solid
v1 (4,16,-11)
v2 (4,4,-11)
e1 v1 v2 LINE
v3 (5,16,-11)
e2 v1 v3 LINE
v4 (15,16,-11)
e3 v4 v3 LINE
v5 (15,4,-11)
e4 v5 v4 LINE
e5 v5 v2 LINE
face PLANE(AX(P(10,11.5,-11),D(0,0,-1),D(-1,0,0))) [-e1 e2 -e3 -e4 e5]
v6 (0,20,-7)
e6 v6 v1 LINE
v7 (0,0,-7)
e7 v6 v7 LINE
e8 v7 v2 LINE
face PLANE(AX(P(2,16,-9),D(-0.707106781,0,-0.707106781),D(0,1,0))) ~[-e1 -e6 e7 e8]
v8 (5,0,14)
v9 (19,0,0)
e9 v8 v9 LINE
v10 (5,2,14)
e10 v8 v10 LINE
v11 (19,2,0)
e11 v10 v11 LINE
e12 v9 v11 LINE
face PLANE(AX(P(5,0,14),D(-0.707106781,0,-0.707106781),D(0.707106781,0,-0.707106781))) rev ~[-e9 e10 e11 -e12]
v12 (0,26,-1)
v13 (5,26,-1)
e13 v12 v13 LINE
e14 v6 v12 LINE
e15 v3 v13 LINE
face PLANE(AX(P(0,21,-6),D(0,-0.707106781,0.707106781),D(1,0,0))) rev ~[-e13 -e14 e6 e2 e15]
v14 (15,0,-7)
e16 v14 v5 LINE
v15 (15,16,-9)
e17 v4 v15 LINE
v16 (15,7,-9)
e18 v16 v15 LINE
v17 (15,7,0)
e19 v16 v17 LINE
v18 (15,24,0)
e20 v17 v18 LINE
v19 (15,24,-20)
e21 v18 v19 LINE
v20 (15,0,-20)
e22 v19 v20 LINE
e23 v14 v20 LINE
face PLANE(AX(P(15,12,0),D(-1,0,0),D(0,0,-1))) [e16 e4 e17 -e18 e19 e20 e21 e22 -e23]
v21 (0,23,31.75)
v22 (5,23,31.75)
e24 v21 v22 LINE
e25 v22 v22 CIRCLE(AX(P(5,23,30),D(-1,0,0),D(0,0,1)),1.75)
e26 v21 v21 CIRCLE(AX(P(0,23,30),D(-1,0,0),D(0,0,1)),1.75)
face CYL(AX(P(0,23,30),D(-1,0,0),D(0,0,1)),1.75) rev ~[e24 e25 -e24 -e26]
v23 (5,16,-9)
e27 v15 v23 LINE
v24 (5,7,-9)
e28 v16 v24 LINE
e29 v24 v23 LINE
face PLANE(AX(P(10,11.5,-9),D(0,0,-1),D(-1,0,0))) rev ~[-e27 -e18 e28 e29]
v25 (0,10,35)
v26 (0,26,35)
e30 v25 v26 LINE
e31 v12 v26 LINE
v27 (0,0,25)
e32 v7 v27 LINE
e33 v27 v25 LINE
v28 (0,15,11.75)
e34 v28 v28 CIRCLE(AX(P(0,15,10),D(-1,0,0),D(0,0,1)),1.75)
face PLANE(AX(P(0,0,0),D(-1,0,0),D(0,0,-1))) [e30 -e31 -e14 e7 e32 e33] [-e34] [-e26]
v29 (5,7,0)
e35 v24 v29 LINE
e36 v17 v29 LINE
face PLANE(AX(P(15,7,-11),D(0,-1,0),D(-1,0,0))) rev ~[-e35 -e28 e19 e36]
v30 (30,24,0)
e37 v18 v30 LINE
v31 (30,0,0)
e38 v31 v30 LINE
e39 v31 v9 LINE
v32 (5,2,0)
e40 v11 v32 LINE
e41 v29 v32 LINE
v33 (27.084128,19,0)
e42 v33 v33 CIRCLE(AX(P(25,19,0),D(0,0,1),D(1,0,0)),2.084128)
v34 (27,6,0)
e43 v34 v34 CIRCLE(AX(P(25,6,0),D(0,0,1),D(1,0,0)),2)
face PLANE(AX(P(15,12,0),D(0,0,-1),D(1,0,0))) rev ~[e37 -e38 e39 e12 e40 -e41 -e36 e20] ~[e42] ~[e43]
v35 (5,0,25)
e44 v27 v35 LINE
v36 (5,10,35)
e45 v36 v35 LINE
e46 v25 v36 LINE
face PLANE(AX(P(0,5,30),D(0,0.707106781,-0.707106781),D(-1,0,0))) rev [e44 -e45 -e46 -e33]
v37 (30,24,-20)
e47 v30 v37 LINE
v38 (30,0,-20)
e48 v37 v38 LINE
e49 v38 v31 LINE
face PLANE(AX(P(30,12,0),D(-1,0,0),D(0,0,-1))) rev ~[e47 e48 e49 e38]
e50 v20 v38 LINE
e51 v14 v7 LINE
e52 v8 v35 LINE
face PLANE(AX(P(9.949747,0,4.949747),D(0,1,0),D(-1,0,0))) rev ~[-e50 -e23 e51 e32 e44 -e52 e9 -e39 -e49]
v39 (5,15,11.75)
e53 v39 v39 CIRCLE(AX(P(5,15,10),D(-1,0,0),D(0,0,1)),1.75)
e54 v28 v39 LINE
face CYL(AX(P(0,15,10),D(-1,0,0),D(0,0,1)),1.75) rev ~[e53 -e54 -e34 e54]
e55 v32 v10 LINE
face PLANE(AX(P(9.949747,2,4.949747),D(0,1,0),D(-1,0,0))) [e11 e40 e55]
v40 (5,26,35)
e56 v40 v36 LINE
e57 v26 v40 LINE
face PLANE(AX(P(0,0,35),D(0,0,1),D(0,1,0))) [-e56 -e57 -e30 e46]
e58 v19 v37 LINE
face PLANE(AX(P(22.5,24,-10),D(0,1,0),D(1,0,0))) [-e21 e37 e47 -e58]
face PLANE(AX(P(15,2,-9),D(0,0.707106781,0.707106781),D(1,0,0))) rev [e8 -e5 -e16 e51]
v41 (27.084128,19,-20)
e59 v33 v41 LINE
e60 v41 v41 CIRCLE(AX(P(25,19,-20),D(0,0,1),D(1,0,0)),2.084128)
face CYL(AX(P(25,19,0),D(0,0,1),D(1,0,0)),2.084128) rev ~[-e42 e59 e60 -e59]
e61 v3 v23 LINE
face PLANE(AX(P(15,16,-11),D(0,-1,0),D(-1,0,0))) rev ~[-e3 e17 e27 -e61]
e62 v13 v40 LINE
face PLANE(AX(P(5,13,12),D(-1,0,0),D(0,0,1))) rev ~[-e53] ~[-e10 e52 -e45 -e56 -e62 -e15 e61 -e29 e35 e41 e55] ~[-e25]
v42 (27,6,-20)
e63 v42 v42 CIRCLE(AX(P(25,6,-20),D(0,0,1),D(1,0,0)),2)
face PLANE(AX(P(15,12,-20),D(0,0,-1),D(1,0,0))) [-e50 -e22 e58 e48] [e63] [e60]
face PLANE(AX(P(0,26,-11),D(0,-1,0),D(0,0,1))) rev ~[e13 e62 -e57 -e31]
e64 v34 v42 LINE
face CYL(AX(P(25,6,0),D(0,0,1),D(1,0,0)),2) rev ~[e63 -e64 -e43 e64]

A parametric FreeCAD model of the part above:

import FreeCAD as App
import Part
import Sketcher
from FreeCAD import Vector


def edges_at(feature, points):
    """Names of the edges that pass closest to the given points."""
    edges = feature.Shape.Edges
    near = lambda p: min(range(len(edges)), key=lambda i: edges[i].distToShape(Part.Vertex(*p))[0])
    return sorted({f"Edge{near(p) + 1}" for p in points})

doc = App.newDocument("Part")
body = doc.addObject("PartDesign::Body", "Body")

# Sketch on XZ plane
sketch1 = doc.addObject("Sketcher::SketchObject", "Sketch")
body.addObject(sketch1)
sketch1.AttachmentSupport = (doc.XZ_Plane, [""])
sketch1.MapMode = "FlatFace"
sketch1.addGeometry([
    Part.LineSegment(Vector(0, -11, 0), Vector(0, 0, 0)),  # 0
    Part.LineSegment(Vector(0, 0, 0), Vector(30, 0, 0)),  # 1
    Part.LineSegment(Vector(30, 0, 0), Vector(30, -20, 0)),  # 2
    Part.LineSegment(Vector(30, -20, 0), Vector(15, -20, 0)),  # 3
    Part.LineSegment(Vector(15, -20, 0), Vector(15, -11, 0)),  # 4
    Part.LineSegment(Vector(15, -11, 0), Vector(0, -11, 0)),  # 5
], False)
sketch1.addConstraint([
    Sketcher.Constraint("Coincident", 0, 2, 1, 1),
    Sketcher.Constraint("Coincident", 1, 2, 2, 1),
    Sketcher.Constraint("Coincident", 2, 2, 3, 1),
    Sketcher.Constraint("Coincident", 3, 2, 4, 1),
    Sketcher.Constraint("Coincident", 4, 2, 5, 1),
    Sketcher.Constraint("Coincident", 5, 2, 0, 1),
    Sketcher.Constraint("Vertical", 0),
    Sketcher.Constraint("Horizontal", 1),
    Sketcher.Constraint("Vertical", 2),
    Sketcher.Constraint("Horizontal", 3),
    Sketcher.Constraint("Vertical", 4),
    Sketcher.Constraint("Horizontal", 5),
    Sketcher.Constraint("Coincident", 0, 2, -1, 1),
    Sketcher.Constraint("Equal", 3, 5),
    Sketcher.Constraint("DistanceX", 1, 1, 1, 2, 30.0),
    Sketcher.Constraint("DistanceY", 0, 1, 0, 2, 11.0),
    Sketcher.Constraint("DistanceY", 2, 2, 2, 1, 20.0),
])
pad1 = doc.addObject("PartDesign::Pad", "Pad")
body.addObject(pad1)
pad1.Profile = sketch1
pad1.Length = 12
pad1.Reversed = True

# Sketch on XY plane
sketch2 = doc.addObject("Sketcher::SketchObject", "Sketch001")
body.addObject(sketch2)
sketch2.AttachmentSupport = (doc.XY_Plane, [""])
sketch2.MapMode = "FlatFace"
sketch2.addGeometry(Part.Circle(Vector(25, 6, 0), Vector(0, 0, 1), 2), False)
sketch2.addConstraint([
    Sketcher.Constraint("Diameter", 0, 4.0),
    Sketcher.Constraint("DistanceX", -1, 1, 0, 3, 25.0),
    Sketcher.Constraint("DistanceY", -1, 1, 0, 3, 6.0),
])
pocket1 = doc.addObject("PartDesign::Pocket", "Pocket")
body.addObject(pocket1)
pocket1.Profile = sketch2
pocket1.Type = "UpToFirst"

# Sketch on YZ plane
sketch3 = doc.addObject("Sketcher::SketchObject", "Sketch002")
body.addObject(sketch3)
sketch3.AttachmentSupport = (doc.YZ_Plane, [""])
sketch3.MapMode = "FlatFace"
sketch3.addGeometry([
    Part.LineSegment(Vector(26, -11, 0), Vector(0, -11, 0)),  # 0
    Part.LineSegment(Vector(0, -11, 0), Vector(0, 35, 0)),  # 1
    Part.LineSegment(Vector(0, 35, 0), Vector(26, 35, 0)),  # 2
    Part.LineSegment(Vector(26, 35, 0), Vector(26, -11, 0)),  # 3
    Part.Circle(Vector(15, 10, 0), Vector(0, 0, 1), 1.8),  # 4
    Part.Circle(Vector(23, 30, 0), Vector(0, 0, 1), 1.8),  # 5
], False)
sketch3.addConstraint([
    Sketcher.Constraint("Coincident", 0, 2, 1, 1),
    Sketcher.Constraint("Coincident", 1, 2, 2, 1),
    Sketcher.Constraint("Coincident", 2, 2, 3, 1),
    Sketcher.Constraint("Coincident", 3, 2, 0, 1),
    Sketcher.Constraint("Horizontal", 0),
    Sketcher.Constraint("Vertical", 1),
    Sketcher.Constraint("Horizontal", 2),
    Sketcher.Constraint("Vertical", 3),
    Sketcher.Constraint("Equal", 4, 5),
    Sketcher.Constraint("PointOnObject", 0, 2, -2),
    Sketcher.Constraint("Diameter", 4, 3.5),
    Sketcher.Constraint("DistanceX", 0, 2, 0, 1, 26.0),
    Sketcher.Constraint("DistanceY", 1, 1, 1, 2, 46.0),
    Sketcher.Constraint("DistanceX", -1, 1, 4, 3, 15.0),
    Sketcher.Constraint("DistanceY", -1, 1, 4, 3, 10.0),
    Sketcher.Constraint("DistanceX", -1, 1, 5, 3, 23.0),
    Sketcher.Constraint("DistanceY", -1, 1, 5, 3, 30.0),
    Sketcher.Constraint("DistanceY", 0, 2, -1, 1, 11.0),
])
pad2 = doc.addObject("PartDesign::Pad", "Pad001")
body.addObject(pad2)
pad2.Profile = sketch3
pad2.Length = 5
doc.recompute()

chamfer = doc.addObject("PartDesign::Chamfer", "Chamfer")
body.addObject(chamfer)
chamfer.Base = (pad2, edges_at(pad2, [(2.5, 26, -11)]))
chamfer.Size = 10

# Sketch on XZ plane
sketch4 = doc.addObject("Sketcher::SketchObject", "Sketch003")
body.addObject(sketch4)
sketch4.AttachmentSupport = (doc.XZ_Plane, [""])
sketch4.MapMode = "FlatFace"
sketch4.addGeometry([
    Part.LineSegment(Vector(19, 0, 0), Vector(5, 14, 0)),
    Part.LineSegment(Vector(5, 14, 0), Vector(5, 0, 0)),
    Part.LineSegment(Vector(5, 0, 0), Vector(19, 0, 0)),
], False)
sketch4.addConstraint([
    Sketcher.Constraint("Coincident", 0, 2, 1, 1),
    Sketcher.Constraint("Coincident", 1, 2, 2, 1),
    Sketcher.Constraint("Coincident", 2, 2, 0, 1),
    Sketcher.Constraint("Vertical", 1),
    Sketcher.Constraint("Horizontal", 2),
    Sketcher.Constraint("PointOnObject", 1, 2, -1),
    Sketcher.Constraint("Equal", 2, 1),
    Sketcher.Constraint("DistanceX", 2, 1, 2, 2, 14.0),
    Sketcher.Constraint("DistanceX", -1, 1, 0, 2, 5.0),
])
pad3 = doc.addObject("PartDesign::Pad", "Pad002")
body.addObject(pad3)
pad3.Profile = sketch4
pad3.Length = 2
pad3.Reversed = True
doc.recompute()

chamfer2 = doc.addObject("PartDesign::Chamfer", "Chamfer001")
body.addObject(chamfer2)
chamfer2.Base = (pad3, edges_at(pad3, [(2.5, 0, 35)]))
chamfer2.Size = 10

# Sketch on XZ plane
sketch5 = doc.addObject("Sketcher::SketchObject", "Sketch004")
body.addObject(sketch5)
sketch5.AttachmentSupport = (doc.XZ_Plane, [""])
sketch5.MapMode = "FlatFace"
sketch5.AttachmentOffset = App.Placement(Vector(0, 0, -12), App.Rotation())
sketch5.addGeometry([
    Part.LineSegment(Vector(15, -20, 0), Vector(15, 0, 0)),
    Part.LineSegment(Vector(15, 0, 0), Vector(30, 0, 0)),
    Part.LineSegment(Vector(30, 0, 0), Vector(30, -20, 0)),
    Part.LineSegment(Vector(30, -20, 0), Vector(15, -20, 0)),
], False)
sketch5.addConstraint([
    Sketcher.Constraint("Coincident", 0, 2, 1, 1),
    Sketcher.Constraint("Coincident", 1, 2, 2, 1),
    Sketcher.Constraint("Coincident", 2, 2, 3, 1),
    Sketcher.Constraint("Coincident", 3, 2, 0, 1),
    Sketcher.Constraint("Vertical", 0),
    Sketcher.Constraint("Horizontal", 1),
    Sketcher.Constraint("Vertical", 2),
    Sketcher.Constraint("Horizontal", 3),
    Sketcher.Constraint("PointOnObject", 0, 2, -1),
    Sketcher.Constraint("DistanceX", 1, 1, 1, 2, 15.0),
    Sketcher.Constraint("DistanceY", 0, 1, 0, 2, 20.0),
    Sketcher.Constraint("DistanceX", -1, 1, 0, 2, 15.0),
])
pad4 = doc.addObject("PartDesign::Pad", "Pad003")
body.addObject(pad4)
pad4.Profile = sketch5
pad4.Length = 12
pad4.Reversed = True

# Sketch on XY plane
sketch6 = doc.addObject("Sketcher::SketchObject", "Sketch005")
body.addObject(sketch6)
sketch6.AttachmentSupport = (doc.XY_Plane, [""])
sketch6.MapMode = "FlatFace"
sketch6.addGeometry(Part.Circle(Vector(25, 19, 0), Vector(0, 0, 1), 2.1), False)
sketch6.addConstraint([
    Sketcher.Constraint("DistanceX", -1, 1, 0, 3, 25.0),
    Sketcher.Constraint("DistanceY", -1, 1, 0, 3, 19.0),
    Sketcher.Constraint("Diameter", 0, 4.168256),
])
pocket2 = doc.addObject("PartDesign::Pocket", "Pocket001")
body.addObject(pocket2)
pocket2.Profile = sketch6
pocket2.Type = "ThroughAll"

# Sketch on XY plane
sketch7 = doc.addObject("Sketcher::SketchObject", "Sketch006")
body.addObject(sketch7)
sketch7.AttachmentSupport = (doc.XY_Plane, [""])
sketch7.MapMode = "FlatFace"
sketch7.AttachmentOffset = App.Placement(Vector(0, 0, -11), App.Rotation())
sketch7.addGeometry([
    Part.LineSegment(Vector(15, 12, 0), Vector(15, 7, 0)),
    Part.LineSegment(Vector(15, 7, 0), Vector(5, 7, 0)),
    Part.LineSegment(Vector(5, 7, 0), Vector(5, 12, 0)),
    Part.LineSegment(Vector(5, 12, 0), Vector(15, 12, 0)),
], False)
sketch7.addConstraint([
    Sketcher.Constraint("Coincident", 0, 2, 1, 1),
    Sketcher.Constraint("Coincident", 1, 2, 2, 1),
    Sketcher.Constraint("Coincident", 2, 2, 3, 1),
    Sketcher.Constraint("Coincident", 3, 2, 0, 1),
    Sketcher.Constraint("Vertical", 0),
    Sketcher.Constraint("Horizontal", 1),
    Sketcher.Constraint("Vertical", 2),
    Sketcher.Constraint("Horizontal", 3),
    Sketcher.Constraint("DistanceX", 1, 2, 1, 1, 10.0),
    Sketcher.Constraint("DistanceY", 0, 2, 0, 1, 5.0),
    Sketcher.Constraint("DistanceX", -1, 1, 0, 2, 15.0),
    Sketcher.Constraint("DistanceY", -1, 1, 0, 2, 7.0),
])
pocket3 = doc.addObject("PartDesign::Pocket", "Pocket002")
body.addObject(pocket3)
pocket3.Profile = sketch7
pocket3.Type = "ThroughAll"
pocket3.Reversed = True

# Sketch on XY plane
sketch8 = doc.addObject("Sketcher::SketchObject", "Sketch007")
body.addObject(sketch8)
sketch8.AttachmentSupport = (doc.XY_Plane, [""])
sketch8.MapMode = "FlatFace"
sketch8.AttachmentOffset = App.Placement(Vector(0, 0, -11), App.Rotation())
sketch8.addGeometry([
    Part.LineSegment(Vector(15, 16, 0), Vector(15, 7, 0)),
    Part.LineSegment(Vector(15, 7, 0), Vector(5, 7, 0)),
    Part.LineSegment(Vector(5, 7, 0), Vector(5, 16, 0)),
    Part.LineSegment(Vector(5, 16, 0), Vector(15, 16, 0)),
], False)
sketch8.addConstraint([
    Sketcher.Constraint("Coincident", 0, 2, 1, 1),
    Sketcher.Constraint("Coincident", 1, 2, 2, 1),
    Sketcher.Constraint("Coincident", 2, 2, 3, 1),
    Sketcher.Constraint("Coincident", 3, 2, 0, 1),
    Sketcher.Constraint("Vertical", 0),
    Sketcher.Constraint("Horizontal", 1),
    Sketcher.Constraint("Vertical", 2),
    Sketcher.Constraint("Horizontal", 3),
    Sketcher.Constraint("DistanceX", 1, 2, 1, 1, 10.0),
    Sketcher.Constraint("DistanceY", 0, 2, 0, 1, 9.0),
    Sketcher.Constraint("DistanceX", -1, 1, 0, 2, 15.0),
    Sketcher.Constraint("DistanceY", -1, 1, 0, 2, 7.0),
])
pad5 = doc.addObject("PartDesign::Pad", "Pad004")
body.addObject(pad5)
pad5.Profile = sketch8
pad5.Length = 2
doc.recompute()

chamfer3 = doc.addObject("PartDesign::Chamfer", "Chamfer002")
body.addObject(chamfer3)
chamfer3.Base = (pad5, edges_at(pad5, [(0, 8, -11), (7.5, 0, -11)]))
chamfer3.Size = 4

doc.recompute()
